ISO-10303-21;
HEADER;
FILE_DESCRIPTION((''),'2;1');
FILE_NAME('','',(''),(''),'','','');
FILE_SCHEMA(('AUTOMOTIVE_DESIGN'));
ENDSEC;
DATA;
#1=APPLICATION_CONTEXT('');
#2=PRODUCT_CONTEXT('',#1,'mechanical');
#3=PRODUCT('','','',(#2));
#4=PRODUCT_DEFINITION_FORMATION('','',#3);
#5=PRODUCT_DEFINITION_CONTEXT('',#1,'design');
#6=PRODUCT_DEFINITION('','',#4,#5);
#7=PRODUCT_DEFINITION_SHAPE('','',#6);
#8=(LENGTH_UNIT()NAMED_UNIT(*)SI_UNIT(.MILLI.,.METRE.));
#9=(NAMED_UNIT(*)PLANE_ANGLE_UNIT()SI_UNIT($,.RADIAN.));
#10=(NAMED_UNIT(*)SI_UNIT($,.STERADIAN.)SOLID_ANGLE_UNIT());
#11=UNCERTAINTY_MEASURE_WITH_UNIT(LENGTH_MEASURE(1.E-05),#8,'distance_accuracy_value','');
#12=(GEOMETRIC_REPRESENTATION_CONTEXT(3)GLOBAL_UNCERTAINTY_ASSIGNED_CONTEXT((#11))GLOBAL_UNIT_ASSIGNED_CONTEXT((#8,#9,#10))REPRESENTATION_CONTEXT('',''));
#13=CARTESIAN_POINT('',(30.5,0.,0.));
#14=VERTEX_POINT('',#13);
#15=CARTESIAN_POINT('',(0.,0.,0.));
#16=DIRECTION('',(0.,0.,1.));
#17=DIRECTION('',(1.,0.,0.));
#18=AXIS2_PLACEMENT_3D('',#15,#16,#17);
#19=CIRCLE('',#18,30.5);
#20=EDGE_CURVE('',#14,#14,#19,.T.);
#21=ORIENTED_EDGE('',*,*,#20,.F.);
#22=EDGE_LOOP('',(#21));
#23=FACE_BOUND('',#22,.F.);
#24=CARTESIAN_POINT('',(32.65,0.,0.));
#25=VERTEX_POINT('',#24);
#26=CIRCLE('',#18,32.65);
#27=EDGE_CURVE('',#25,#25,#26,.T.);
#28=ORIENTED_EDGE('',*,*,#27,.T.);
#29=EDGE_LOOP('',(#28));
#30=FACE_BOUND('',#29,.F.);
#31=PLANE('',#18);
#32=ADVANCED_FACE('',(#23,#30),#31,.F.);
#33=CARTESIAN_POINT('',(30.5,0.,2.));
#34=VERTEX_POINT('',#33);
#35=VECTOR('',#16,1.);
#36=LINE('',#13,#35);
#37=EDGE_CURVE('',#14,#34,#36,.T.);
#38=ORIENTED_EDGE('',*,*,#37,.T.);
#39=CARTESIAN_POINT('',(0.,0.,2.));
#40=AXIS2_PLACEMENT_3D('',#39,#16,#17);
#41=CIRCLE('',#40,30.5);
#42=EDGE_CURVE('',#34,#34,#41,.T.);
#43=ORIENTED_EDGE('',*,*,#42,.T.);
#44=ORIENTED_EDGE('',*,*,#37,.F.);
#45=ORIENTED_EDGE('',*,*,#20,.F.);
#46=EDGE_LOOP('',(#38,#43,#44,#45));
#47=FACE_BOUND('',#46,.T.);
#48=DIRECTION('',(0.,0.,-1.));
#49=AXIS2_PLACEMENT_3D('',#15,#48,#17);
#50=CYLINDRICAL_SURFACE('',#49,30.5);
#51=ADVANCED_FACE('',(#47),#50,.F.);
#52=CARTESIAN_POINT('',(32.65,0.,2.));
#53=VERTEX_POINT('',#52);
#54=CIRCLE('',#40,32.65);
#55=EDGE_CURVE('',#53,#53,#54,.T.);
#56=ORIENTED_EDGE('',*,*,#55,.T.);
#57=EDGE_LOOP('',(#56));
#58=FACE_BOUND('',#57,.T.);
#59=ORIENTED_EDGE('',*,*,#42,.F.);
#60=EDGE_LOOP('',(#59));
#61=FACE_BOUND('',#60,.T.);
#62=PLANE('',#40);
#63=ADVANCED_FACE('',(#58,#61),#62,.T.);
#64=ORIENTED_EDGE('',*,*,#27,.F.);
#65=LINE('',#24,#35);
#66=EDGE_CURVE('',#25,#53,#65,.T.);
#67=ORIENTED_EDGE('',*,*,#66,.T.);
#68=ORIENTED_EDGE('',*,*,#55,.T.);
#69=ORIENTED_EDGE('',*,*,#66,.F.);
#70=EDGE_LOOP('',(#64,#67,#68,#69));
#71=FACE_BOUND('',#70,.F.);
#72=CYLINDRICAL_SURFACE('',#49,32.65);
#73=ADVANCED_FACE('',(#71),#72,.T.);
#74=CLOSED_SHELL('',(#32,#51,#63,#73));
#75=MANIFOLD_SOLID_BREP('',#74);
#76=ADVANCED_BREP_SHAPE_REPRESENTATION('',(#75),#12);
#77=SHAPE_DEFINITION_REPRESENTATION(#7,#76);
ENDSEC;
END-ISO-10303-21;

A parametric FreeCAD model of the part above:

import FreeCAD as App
import Part
import Sketcher
from FreeCAD import Vector

doc = App.newDocument("Part")
body = doc.addObject("PartDesign::Body", "Body")

sketch1 = doc.addObject("Sketcher::SketchObject", "Sketch")
body.addObject(sketch1)
sketch1.AttachmentSupport = (doc.XY_Plane, [""])
sketch1.MapMode = "FlatFace"
sketch1.addGeometry([
    Part.Circle(Vector(0, 0, 0), Vector(0, 0, 1), 33),
    Part.Circle(Vector(0, 0, 0), Vector(0, 0, 1), 30),
], False)
sketch1.addConstraint([
    Sketcher.Constraint("Coincident", 0, 3, -1, 1),
    Sketcher.Constraint("Coincident", 1, 3, -1, 1),
    Sketcher.Constraint("Diameter", 1, 61.0),
    Sketcher.Constraint("Diameter", 0, 65.3),
])
pad1 = doc.addObject("PartDesign::Pad", "Pad")
body.addObject(pad1)
pad1.Profile = sketch1
pad1.Length = 2

doc.recompute()
